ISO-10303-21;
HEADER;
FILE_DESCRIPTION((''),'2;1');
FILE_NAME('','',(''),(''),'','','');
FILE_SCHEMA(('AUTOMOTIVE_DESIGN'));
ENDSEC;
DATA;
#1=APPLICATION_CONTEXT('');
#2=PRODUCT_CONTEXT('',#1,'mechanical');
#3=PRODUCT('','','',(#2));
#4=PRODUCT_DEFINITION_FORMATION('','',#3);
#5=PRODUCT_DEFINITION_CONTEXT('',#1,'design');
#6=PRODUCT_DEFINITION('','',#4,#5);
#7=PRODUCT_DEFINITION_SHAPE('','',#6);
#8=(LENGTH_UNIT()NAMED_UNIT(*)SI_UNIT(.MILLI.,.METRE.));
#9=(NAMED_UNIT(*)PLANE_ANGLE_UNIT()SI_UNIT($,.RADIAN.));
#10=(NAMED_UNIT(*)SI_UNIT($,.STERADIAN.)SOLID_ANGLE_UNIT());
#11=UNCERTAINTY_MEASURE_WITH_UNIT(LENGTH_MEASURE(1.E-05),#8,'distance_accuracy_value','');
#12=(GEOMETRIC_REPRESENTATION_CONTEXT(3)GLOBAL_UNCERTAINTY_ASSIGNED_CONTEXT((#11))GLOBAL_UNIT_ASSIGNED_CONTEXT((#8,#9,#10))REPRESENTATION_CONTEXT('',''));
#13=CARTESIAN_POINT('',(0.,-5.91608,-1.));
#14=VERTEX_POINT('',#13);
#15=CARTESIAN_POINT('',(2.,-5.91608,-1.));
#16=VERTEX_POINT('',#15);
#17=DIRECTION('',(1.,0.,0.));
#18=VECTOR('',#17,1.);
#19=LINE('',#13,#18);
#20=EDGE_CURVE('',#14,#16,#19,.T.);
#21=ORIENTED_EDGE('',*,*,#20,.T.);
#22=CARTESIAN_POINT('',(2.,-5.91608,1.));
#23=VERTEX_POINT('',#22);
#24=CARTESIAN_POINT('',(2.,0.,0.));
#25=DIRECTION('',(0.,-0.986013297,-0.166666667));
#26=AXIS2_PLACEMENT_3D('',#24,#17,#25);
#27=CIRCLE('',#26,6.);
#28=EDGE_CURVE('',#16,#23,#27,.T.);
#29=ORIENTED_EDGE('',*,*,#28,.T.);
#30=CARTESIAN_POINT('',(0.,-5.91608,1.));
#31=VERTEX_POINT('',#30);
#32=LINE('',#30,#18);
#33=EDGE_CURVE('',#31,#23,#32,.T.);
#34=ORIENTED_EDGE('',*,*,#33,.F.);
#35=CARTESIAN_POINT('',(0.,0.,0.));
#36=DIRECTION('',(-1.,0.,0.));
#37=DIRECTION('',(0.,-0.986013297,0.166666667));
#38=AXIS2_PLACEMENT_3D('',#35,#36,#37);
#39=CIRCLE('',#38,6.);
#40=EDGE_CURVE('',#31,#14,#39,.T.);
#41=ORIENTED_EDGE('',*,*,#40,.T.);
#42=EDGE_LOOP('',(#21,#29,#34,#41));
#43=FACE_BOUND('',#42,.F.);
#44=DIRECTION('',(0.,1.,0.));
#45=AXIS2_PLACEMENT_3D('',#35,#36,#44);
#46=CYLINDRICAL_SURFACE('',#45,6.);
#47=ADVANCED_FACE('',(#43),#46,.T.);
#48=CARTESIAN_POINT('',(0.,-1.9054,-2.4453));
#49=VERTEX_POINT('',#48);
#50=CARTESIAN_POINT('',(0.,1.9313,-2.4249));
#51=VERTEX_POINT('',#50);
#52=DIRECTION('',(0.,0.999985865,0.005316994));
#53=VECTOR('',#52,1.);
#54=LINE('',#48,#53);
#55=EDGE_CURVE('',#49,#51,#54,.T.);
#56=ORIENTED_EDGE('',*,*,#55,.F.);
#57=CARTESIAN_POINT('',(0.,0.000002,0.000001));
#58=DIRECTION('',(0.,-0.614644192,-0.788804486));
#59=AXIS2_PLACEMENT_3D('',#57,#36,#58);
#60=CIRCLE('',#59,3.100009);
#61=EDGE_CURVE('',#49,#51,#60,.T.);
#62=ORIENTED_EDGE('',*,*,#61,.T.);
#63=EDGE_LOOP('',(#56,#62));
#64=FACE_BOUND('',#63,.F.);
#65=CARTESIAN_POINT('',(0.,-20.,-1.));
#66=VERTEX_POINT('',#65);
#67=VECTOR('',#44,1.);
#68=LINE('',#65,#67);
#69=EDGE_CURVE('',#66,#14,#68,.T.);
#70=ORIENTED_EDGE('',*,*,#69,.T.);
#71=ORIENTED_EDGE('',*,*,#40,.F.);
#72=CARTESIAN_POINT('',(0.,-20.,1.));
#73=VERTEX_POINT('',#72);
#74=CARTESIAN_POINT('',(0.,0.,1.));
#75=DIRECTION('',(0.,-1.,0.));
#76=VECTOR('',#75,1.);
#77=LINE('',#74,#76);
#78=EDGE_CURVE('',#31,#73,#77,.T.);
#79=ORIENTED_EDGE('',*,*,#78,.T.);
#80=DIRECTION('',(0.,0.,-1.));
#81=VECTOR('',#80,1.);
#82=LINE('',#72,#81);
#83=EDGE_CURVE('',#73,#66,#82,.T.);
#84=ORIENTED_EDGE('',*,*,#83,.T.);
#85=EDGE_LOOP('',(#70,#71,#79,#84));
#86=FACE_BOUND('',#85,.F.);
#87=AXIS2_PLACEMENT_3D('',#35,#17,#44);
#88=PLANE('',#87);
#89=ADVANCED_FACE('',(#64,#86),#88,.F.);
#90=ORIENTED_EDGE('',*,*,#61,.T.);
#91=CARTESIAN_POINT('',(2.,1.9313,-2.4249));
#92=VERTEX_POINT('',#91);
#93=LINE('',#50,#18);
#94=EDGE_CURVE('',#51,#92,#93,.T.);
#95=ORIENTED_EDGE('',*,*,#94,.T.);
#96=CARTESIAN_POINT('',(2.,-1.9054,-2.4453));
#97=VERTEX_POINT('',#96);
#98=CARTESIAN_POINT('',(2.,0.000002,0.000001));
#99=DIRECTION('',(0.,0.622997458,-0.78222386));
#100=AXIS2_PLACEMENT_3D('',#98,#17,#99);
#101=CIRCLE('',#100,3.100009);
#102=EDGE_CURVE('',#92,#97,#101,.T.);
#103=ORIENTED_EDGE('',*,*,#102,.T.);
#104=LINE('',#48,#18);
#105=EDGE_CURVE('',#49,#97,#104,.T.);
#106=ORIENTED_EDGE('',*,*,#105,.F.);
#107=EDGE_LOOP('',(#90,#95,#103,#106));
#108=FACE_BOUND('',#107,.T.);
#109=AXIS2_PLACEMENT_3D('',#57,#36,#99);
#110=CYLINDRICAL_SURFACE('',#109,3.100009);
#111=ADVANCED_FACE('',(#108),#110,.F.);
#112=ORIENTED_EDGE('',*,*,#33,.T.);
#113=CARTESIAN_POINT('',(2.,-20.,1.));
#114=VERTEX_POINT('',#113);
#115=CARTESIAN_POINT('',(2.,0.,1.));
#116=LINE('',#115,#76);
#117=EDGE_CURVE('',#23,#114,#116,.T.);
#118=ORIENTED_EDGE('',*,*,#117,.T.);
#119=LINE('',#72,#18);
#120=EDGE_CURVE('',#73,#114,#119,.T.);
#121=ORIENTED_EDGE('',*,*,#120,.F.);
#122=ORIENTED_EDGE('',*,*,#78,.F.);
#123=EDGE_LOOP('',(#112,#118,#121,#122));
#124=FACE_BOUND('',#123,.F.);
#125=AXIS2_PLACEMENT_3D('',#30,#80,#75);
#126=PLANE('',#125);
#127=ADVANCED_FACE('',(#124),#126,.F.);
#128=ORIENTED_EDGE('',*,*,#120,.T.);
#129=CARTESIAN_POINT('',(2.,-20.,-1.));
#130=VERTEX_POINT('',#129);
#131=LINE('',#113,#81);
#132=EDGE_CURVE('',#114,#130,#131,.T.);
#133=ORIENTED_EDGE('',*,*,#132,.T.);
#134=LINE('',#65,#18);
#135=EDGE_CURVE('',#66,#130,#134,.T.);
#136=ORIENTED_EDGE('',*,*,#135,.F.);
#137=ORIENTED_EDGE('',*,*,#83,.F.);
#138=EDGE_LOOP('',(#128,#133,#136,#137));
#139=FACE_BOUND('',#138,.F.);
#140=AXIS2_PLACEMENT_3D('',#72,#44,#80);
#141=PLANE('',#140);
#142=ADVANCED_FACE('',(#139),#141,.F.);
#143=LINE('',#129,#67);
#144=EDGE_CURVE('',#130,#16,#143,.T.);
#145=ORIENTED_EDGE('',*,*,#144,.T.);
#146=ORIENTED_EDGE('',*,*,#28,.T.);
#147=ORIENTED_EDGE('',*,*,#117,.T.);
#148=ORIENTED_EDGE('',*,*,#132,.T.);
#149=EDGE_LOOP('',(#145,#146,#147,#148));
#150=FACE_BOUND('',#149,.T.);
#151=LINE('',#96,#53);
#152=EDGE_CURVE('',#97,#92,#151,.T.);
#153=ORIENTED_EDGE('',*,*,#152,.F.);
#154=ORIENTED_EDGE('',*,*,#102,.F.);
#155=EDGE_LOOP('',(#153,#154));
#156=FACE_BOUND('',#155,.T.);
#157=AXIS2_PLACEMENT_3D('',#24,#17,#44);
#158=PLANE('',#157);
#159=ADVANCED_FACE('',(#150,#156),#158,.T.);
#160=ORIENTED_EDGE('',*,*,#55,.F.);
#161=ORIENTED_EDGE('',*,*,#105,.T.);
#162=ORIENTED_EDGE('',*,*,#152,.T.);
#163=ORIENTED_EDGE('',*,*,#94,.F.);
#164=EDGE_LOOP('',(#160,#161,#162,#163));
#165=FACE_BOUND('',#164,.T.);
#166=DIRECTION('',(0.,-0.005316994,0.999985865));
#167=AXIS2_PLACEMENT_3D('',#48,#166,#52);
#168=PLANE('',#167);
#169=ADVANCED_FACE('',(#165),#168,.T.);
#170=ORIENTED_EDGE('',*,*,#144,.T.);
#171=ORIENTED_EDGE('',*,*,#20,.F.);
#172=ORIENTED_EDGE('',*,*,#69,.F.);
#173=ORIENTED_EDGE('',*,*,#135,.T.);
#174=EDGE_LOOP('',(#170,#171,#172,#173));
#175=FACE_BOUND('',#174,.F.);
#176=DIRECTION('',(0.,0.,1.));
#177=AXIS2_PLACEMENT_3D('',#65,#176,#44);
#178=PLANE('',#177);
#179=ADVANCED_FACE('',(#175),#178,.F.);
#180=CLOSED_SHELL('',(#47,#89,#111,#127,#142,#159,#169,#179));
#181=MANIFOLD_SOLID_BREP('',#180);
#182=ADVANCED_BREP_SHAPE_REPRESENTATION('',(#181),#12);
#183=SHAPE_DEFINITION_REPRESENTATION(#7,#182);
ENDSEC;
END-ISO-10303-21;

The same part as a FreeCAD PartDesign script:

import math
import FreeCAD as App
import Part
import Sketcher
from FreeCAD import Vector
Q = App.Units.Quantity

doc = App.newDocument("Part")
body = doc.addObject("PartDesign::Body", "Body")

# Sketch on YZ plane
sketch1 = doc.addObject("Sketcher::SketchObject", "Sketch")
body.addObject(sketch1)
sketch1.AttachmentSupport = (doc.YZ_Plane, [""])
sketch1.MapMode = "FlatFace"
sketch1.addGeometry([
    Part.LineSegment(Vector(-5.91608, 1, 0), Vector(-20, 1, 0)),  # 0
    Part.LineSegment(Vector(-20, 1, 0), Vector(-20, -1, 0)),  # 1
    Part.LineSegment(Vector(-20, -1, 0), Vector(-5.91608, -1, 0)),  # 2
    Part.ArcOfCircle(Part.Circle(Vector(0, 0, 0), Vector(0, 0, 1), 6), math.radians(-170.405932), math.radians(170.405932)),  # 3
    Part.LineSegment(Vector(1.9313, -2.4249, 0), Vector(-1.9054, -2.4453, 0)),  # 4
    Part.ArcOfCircle(Part.Circle(Vector(0, 0, 0), Vector(0, 0, 1), 3.10001), math.radians(-51.464599), math.radians(232.073954)),  # 5
], False)
sketch1.addConstraint([
    Sketcher.Constraint("Coincident", 0, 2, 1, 1),
    Sketcher.Constraint("Coincident", 1, 2, 2, 1),
    Sketcher.Constraint("Coincident", 2, 2, 3, 1),
    Sketcher.Constraint("Coincident", 3, 2, 0, 1),
    Sketcher.Constraint("Coincident", 4, 1, 5, 1),
    Sketcher.Constraint("Coincident", 5, 2, 4, 2),
    Sketcher.Constraint("Horizontal", 0),
    Sketcher.Constraint("Vertical", 1),
    Sketcher.Constraint("Horizontal", 2),
    Sketcher.Constraint("Coincident", 3, 3, -1, 1),
    Sketcher.Constraint("Coincident", 5, 3, -1, 1),
    Sketcher.Constraint("Vertical", 2, 2, 3, 2),
    Sketcher.Constraint("Radius", 3, Q("6 mm")),
    Sketcher.Constraint("Radius", 5, Q("3.1 mm")),
    Sketcher.Constraint("DistanceY", 1, 2, 1, 1, Q("2 mm")),
    Sketcher.Constraint("DistanceX", 0, 2, -1, 1, Q("20 mm")),
    Sketcher.Constraint("DistanceY", 4, 1, -1, 1, Q("2.425 mm")),
    Sketcher.Constraint("Distance", 4, Q("3.8368 mm")),
])
pad1 = doc.addObject("PartDesign::Pad", "Pad")
body.addObject(pad1)
pad1.Profile = sketch1
pad1.Length = 2

doc.recompute()
